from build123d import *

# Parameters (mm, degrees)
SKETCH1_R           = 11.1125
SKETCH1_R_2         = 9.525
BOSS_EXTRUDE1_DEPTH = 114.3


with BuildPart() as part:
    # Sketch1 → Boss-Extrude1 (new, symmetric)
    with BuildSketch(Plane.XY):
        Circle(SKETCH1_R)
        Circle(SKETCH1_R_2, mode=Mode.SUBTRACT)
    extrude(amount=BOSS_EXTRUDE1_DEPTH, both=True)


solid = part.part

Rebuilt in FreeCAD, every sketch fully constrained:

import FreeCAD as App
import Part
import Sketcher
Q = App.Units.Quantity

doc = App.newDocument("Part")
params = doc.addObject("Spreadsheet::Sheet", "Params")
for row, (alias, value) in enumerate([
    ("sketch1_diameter", "0.75 in"),
    ("sketch1_diameter2", "0.875 in"),
    ("pad1_length", "9 in"),
], start=1):
    params.set(f"A{row}", alias)
    params.set(f"B{row}", "=" + value)
    params.setAlias(f"B{row}", alias)

body = doc.addObject("PartDesign::Body", "Body")

# Sketch on XY plane
sketch1 = body.newObject("Sketcher::SketchObject", "Sketch")
sketch1.AttachmentSupport = (doc.getObject("XY_Plane"), [""])
sketch1.MapMode = "FlatFace"
sketch1.addGeometry(Part.Circle(App.Vector(0, 0, 0), App.Vector(0, 0, 1), 11), False)
sketch1.addGeometry(Part.Circle(App.Vector(0, 0, 0), App.Vector(0, 0, 1), 10), False)
sketch1.addConstraint(Sketcher.Constraint("Coincident", 0, 3, -1, 1))
sketch1.addConstraint(Sketcher.Constraint("Coincident", 1, 3, -1, 1))
sketch1.addConstraint(Sketcher.Constraint("Diameter", 1, Q("0.75 in")))
sketch1.addConstraint(Sketcher.Constraint("Diameter", 0, Q("0.875 in")))
sketch1.setExpression("Constraints[2]", "Params.sketch1_diameter")
sketch1.setExpression("Constraints[3]", "Params.sketch1_diameter2")
pad1 = body.newObject("PartDesign::Pad", "Pad")
pad1.Profile = sketch1
pad1.setExpression("Length", "Params.pad1_length")
pad1.Midplane = True

doc.recompute()
